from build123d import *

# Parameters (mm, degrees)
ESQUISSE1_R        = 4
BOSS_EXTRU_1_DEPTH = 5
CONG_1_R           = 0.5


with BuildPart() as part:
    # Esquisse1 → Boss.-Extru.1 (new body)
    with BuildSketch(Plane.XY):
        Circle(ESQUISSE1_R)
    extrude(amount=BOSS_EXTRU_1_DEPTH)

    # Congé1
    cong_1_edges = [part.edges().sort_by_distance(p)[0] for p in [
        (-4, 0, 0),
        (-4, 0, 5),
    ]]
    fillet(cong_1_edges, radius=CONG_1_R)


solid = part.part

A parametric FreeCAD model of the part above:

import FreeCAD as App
import Part
import Sketcher

V = App.Vector
Q = App.Units.Quantity


def edges_at(feature, points):
    """Names of the edges that pass closest to the given points."""
    edges = feature.Shape.Edges
    near = lambda p: min(range(len(edges)), key=lambda i: edges[i].distToShape(Part.Vertex(*p))[0])
    return sorted({f"Edge{near(p) + 1}" for p in points})

doc = App.newDocument("Part")
params = doc.addObject("Spreadsheet::Sheet", "Params")
for row, (alias, value) in enumerate([
    ("sketch1_diameter", "8 mm"),
    ("pad1_length", "5 mm"),
    ("fillet_radius", "0.5 mm"),
], start=1):
    params.set(f"A{row}", alias)
    params.set(f"B{row}", "=" + value)
    params.setAlias(f"B{row}", alias)

body = doc.addObject("PartDesign::Body", "Body")

# Sketch on XY plane
sketch1 = body.newObject("Sketcher::SketchObject", "Sketch")
sketch1.AttachmentSupport = (doc.getObject("XY_Plane"), [""])
sketch1.MapMode = "FlatFace"
sketch1.addGeometry(Part.Circle(V(0, 0, 0), V(0, 0, 1), 4), False)
sketch1.addConstraint([
    Sketcher.Constraint("Coincident", 0, 3, -1, 1),
    Sketcher.Constraint("Diameter", 0, Q("8 mm")),
])
sketch1.setExpression("Constraints[1]", "Params.sketch1_diameter")
pad1 = body.newObject("PartDesign::Pad", "Pad")
pad1.Profile = sketch1
pad1.setExpression("Length", "Params.pad1_length")
doc.recompute()

fillet = body.newObject("PartDesign::Fillet", "Fillet")
fillet.Base = (pad1, edges_at(pad1, [(-4, 0, 0), (-4, 0, 5)]))
fillet.setExpression("Radius", "Params.fillet_radius")

doc.recompute()
